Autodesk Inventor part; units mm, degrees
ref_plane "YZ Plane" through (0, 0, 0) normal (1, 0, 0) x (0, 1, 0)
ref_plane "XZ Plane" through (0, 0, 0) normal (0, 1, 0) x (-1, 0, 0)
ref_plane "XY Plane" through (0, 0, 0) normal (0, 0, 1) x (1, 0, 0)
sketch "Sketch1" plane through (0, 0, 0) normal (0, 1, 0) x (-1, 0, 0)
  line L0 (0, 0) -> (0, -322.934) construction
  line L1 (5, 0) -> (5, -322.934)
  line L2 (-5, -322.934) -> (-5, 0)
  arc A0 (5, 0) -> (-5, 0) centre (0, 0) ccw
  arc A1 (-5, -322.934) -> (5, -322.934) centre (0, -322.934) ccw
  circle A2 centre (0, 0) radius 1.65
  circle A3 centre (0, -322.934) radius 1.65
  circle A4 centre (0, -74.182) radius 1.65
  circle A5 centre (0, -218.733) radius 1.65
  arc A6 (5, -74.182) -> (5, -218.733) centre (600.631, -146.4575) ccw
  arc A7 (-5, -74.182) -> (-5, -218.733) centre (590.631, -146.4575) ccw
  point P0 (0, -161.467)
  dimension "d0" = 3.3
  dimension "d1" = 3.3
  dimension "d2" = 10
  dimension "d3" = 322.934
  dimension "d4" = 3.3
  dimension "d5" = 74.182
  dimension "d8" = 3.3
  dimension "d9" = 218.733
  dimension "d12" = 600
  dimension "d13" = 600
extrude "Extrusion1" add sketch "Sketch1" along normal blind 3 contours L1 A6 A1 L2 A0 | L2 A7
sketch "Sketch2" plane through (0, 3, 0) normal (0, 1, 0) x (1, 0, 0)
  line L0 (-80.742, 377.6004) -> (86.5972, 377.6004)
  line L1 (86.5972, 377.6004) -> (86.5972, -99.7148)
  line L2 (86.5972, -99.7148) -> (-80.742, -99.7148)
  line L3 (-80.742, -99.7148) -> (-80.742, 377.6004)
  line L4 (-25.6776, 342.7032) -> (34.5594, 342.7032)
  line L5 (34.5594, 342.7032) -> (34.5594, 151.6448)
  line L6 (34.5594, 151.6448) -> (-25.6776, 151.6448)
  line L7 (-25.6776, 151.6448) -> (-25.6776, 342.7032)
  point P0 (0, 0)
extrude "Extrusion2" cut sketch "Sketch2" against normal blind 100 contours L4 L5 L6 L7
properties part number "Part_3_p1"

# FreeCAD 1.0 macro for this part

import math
import FreeCAD as App
import Part
import Sketcher


def add_polygon(sketch, points):
    """Adds a closed chain of lines whose ends are joined by coincident constraints."""
    first, n = sketch.GeometryCount, len(points)
    for a, b in zip(points, points[1:] + points[:1]):
        sketch.addGeometry(Part.LineSegment(App.Vector(*a, 0), App.Vector(*b, 0)), False)
    for i in range(n):
        sketch.addConstraint(Sketcher.Constraint("Coincident", first + i, 2, first + (i + 1) % n, 1))

doc = App.newDocument("Part")
body = doc.addObject("PartDesign::Body", "Body")

sketch1 = body.newObject("Sketcher::SketchObject", "Sketch")
sketch1.AttachmentSupport = (doc.getObject("XZ_Plane"), [""])
sketch1.MapMode = "FlatFace"
sketch1.addGeometry([
    Part.LineSegment(App.Vector(-5, -74.182, 0), App.Vector(-5, 0, 0)),
    Part.ArcOfCircle(Part.Circle(App.Vector(0, 0, 0), App.Vector(0, 0, 1), 5), math.radians(0), math.radians(180)),
    Part.LineSegment(App.Vector(5, 0, 0), App.Vector(5, -74.182, 0)),
    Part.ArcOfCircle(Part.Circle(App.Vector(-590.631, -146.4575, 0), App.Vector(0, 0, 1), 600.00003), math.radians(-6.918603), math.radians(6.918603)),
    Part.LineSegment(App.Vector(5, -218.733, 0), App.Vector(5, -322.934, 0)),
    Part.ArcOfCircle(Part.Circle(App.Vector(0, -322.934, 0), App.Vector(0, 0, 1), 5), math.radians(180), math.radians(360)),
    Part.LineSegment(App.Vector(-5, -322.934, 0), App.Vector(-5, -218.733, 0)),
    Part.ArcOfCircle(Part.Circle(App.Vector(-600.631, -146.4575, 0), App.Vector(0, 0, 1), 600.00003), math.radians(-6.918603), math.radians(6.918603)),
    Part.Circle(App.Vector(0, -322.934, 0), App.Vector(0, 0, 1), 1.65),
    Part.Circle(App.Vector(0, -218.733, 0), App.Vector(0, 0, 1), 1.65),
    Part.Circle(App.Vector(0, -74.182, 0), App.Vector(0, 0, 1), 1.65),
    Part.Circle(App.Vector(0, 0, 0), App.Vector(0, 0, 1), 1.65),
], False)
sketch1.addConstraint([
    Sketcher.Constraint("Tangent", 0, 2, 1, 2),
    Sketcher.Constraint("Tangent", 1, 1, 2, 1),
    Sketcher.Constraint("Coincident", 2, 2, 3, 2),
    Sketcher.Constraint("Coincident", 3, 1, 4, 1),
    Sketcher.Constraint("Tangent", 4, 2, 5, 2),
    Sketcher.Constraint("Tangent", 5, 1, 6, 1),
    Sketcher.Constraint("Coincident", 6, 2, 7, 1),
    Sketcher.Constraint("Coincident", 7, 2, 0, 1),
    Sketcher.Constraint("Vertical", 0),
    Sketcher.Constraint("Vertical", 2),
    Sketcher.Constraint("Vertical", 4),
    Sketcher.Constraint("Vertical", 6),
    Sketcher.Constraint("Coincident", 1, 3, -1, 1),
    Sketcher.Constraint("Coincident", 11, 3, -1, 1),
    Sketcher.Constraint("Coincident", 8, 3, 5, 3),
    Sketcher.Constraint("Equal", 1, 5),
    Sketcher.Constraint("Equal", 3, 7),
    Sketcher.Constraint("Equal", 8, 9),
    Sketcher.Constraint("Equal", 9, 10),
    Sketcher.Constraint("Equal", 10, 11),
    Sketcher.Constraint("Symmetric", 3, 1, 6, 2, -2),
    Sketcher.Constraint("PointOnObject", 9, 3, -2),
    Sketcher.Constraint("PointOnObject", 10, 3, -2),
    Sketcher.Constraint("Horizontal", 3, 3, 7, 3),
    Sketcher.Constraint("Horizontal", 10, 3, 2, 2),
    Sketcher.Constraint("Radius", 1, 5.0),
    Sketcher.Constraint("Radius", 3, 600.0),
    Sketcher.Constraint("Diameter", 8, 3.3),
    Sketcher.Constraint("DistanceY", 0, 1, 0, 2, 74.182),
    Sketcher.Constraint("DistanceY", 5, 3, -1, 1, 322.934),
    Sketcher.Constraint("DistanceY", 9, 3, -1, 1, 218.733),
    Sketcher.Constraint("DistanceY", 6, 2, -1, 1, 218.733),
])
pad1 = body.newObject("PartDesign::Pad", "Pad")
pad1.Profile = sketch1
pad1.Length = 3
pad1.Reversed = True

sketch2 = body.newObject("Sketcher::SketchObject", "Sketch001")
sketch2.AttachmentSupport = (doc.getObject("XZ_Plane"), [""])
sketch2.MapMode = "FlatFace"
sketch2.AttachmentOffset = App.Placement(App.Vector(0, 0, -3), App.Rotation())
add_polygon(sketch2, [(34.5594, -342.7032), (-25.6776, -342.7032), (-25.6776, -151.6448), (34.5594, -151.6448)])
sketch2.addConstraint([
    Sketcher.Constraint("Horizontal", 0),
    Sketcher.Constraint("Vertical", 1),
    Sketcher.Constraint("Horizontal", 2),
    Sketcher.Constraint("Vertical", 3),
    Sketcher.Constraint("DistanceX", 0, 2, 0, 1, 60.237),
    Sketcher.Constraint("DistanceY", 1, 1, 1, 2, 191.0584),
    Sketcher.Constraint("DistanceX", 0, 2, -1, 1, 25.6776),
    Sketcher.Constraint("DistanceY", 0, 2, -1, 1, 342.7032),
])
pocket1 = body.newObject("PartDesign::Pocket", "Pocket")
pocket1.Profile = sketch2
pocket1.Length = 100
pocket1.Reversed = True

doc.recompute()
